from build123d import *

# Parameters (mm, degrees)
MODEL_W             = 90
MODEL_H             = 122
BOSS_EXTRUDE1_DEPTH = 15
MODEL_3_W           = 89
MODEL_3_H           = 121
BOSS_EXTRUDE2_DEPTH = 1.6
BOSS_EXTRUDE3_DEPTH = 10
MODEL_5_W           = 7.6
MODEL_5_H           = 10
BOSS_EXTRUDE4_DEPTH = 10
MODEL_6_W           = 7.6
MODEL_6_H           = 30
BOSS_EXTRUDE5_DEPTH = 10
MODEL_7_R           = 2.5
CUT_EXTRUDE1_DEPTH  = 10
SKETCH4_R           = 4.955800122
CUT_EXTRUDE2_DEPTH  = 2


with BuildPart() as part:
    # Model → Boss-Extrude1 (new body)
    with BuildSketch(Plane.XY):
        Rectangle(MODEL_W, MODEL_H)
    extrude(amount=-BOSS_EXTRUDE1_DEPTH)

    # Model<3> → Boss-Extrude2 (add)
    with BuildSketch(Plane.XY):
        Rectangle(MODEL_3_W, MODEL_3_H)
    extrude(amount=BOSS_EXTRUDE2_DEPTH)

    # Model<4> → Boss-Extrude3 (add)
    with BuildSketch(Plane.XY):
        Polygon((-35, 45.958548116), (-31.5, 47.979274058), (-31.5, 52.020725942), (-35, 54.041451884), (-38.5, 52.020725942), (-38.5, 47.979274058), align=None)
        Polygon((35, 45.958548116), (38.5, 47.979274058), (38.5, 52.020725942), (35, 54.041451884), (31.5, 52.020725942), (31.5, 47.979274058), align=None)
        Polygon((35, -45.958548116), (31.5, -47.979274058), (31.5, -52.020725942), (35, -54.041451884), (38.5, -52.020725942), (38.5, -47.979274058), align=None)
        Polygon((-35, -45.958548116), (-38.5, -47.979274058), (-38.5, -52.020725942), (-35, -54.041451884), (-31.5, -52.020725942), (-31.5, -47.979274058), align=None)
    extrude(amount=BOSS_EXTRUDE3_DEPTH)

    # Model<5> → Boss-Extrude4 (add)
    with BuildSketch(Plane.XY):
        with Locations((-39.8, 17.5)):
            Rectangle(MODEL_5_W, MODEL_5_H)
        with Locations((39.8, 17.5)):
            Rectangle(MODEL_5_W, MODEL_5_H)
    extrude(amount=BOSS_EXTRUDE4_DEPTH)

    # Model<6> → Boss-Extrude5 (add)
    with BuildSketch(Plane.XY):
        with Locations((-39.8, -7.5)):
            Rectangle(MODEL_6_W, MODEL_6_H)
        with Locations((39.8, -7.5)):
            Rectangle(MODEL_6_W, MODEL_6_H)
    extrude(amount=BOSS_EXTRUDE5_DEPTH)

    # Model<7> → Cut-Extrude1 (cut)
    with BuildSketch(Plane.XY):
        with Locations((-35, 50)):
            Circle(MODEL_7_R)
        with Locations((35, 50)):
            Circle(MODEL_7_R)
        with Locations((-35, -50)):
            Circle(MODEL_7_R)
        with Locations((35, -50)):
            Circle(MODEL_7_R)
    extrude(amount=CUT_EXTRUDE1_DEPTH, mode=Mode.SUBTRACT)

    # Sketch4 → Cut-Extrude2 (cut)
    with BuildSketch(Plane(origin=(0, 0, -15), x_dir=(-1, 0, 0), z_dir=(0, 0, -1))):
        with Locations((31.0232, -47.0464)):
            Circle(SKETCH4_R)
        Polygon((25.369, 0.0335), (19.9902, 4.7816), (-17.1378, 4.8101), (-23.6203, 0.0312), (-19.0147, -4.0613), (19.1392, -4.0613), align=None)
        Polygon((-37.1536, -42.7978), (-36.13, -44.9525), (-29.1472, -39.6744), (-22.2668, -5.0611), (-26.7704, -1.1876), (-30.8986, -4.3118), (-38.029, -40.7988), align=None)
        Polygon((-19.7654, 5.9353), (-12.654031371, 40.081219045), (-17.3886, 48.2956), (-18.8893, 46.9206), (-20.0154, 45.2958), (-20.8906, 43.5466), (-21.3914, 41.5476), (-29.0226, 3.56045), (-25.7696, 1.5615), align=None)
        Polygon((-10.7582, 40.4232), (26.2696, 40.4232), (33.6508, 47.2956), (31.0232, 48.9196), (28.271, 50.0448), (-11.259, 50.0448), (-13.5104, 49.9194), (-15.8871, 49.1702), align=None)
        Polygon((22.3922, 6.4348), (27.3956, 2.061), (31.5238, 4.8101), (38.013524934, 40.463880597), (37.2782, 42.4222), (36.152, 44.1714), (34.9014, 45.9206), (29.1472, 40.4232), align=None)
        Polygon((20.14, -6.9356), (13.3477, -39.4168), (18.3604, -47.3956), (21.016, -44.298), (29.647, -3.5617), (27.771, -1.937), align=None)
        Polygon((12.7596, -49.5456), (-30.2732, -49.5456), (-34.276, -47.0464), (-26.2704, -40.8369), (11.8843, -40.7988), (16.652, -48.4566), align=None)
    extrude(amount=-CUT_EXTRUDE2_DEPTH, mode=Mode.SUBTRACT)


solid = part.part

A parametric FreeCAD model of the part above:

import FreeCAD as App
import Part
import Sketcher
Q = App.Units.Quantity

doc = App.newDocument("Part")
body = doc.addObject("PartDesign::Body", "Body")

# Sketch on XY plane
sketch1 = body.newObject("Sketcher::SketchObject", "Sketch")
sketch1.AttachmentSupport = (doc.getObject("XY_Plane"), [""])
sketch1.MapMode = "FlatFace"
sketch1.addGeometry(Part.LineSegment(App.Vector(-45, 61, 0), App.Vector(-45, -61, 0)), False)
sketch1.addGeometry(Part.LineSegment(App.Vector(-45, -61, 0), App.Vector(45, -61, 0)), False)
sketch1.addGeometry(Part.LineSegment(App.Vector(45, -61, 0), App.Vector(45, 61, 0)), False)
sketch1.addGeometry(Part.LineSegment(App.Vector(45, 61, 0), App.Vector(-45, 61, 0)), False)
sketch1.addConstraint(Sketcher.Constraint("Coincident", 0, 2, 1, 1))
sketch1.addConstraint(Sketcher.Constraint("Coincident", 1, 2, 2, 1))
sketch1.addConstraint(Sketcher.Constraint("Coincident", 2, 2, 3, 1))
sketch1.addConstraint(Sketcher.Constraint("Coincident", 3, 2, 0, 1))
sketch1.addConstraint(Sketcher.Constraint("Vertical", 0))
sketch1.addConstraint(Sketcher.Constraint("Horizontal", 1))
sketch1.addConstraint(Sketcher.Constraint("Vertical", 2))
sketch1.addConstraint(Sketcher.Constraint("Horizontal", 3))
sketch1.addConstraint(Sketcher.Constraint("Symmetric", 0, 2, 2, 2, -1, 1))
sketch1.addConstraint(Sketcher.Constraint("DistanceX", 1, 1, 1, 2, Q("90 mm")))
sketch1.addConstraint(Sketcher.Constraint("DistanceY", 0, 2, 0, 1, Q("122 mm")))
pad1 = body.newObject("PartDesign::Pad", "Pad")
pad1.Profile = sketch1
pad1.Length = 15
pad1.Reversed = True

# Sketch on XY plane
sketch2 = body.newObject("Sketcher::SketchObject", "Sketch001")
sketch2.AttachmentSupport = (doc.getObject("XY_Plane"), [""])
sketch2.MapMode = "FlatFace"
sketch2.addGeometry(Part.LineSegment(App.Vector(-44, 60, 0), App.Vector(-44, -60, 0)), False)
sketch2.addGeometry(Part.LineSegment(App.Vector(-44, -60, 0), App.Vector(44, -60, 0)), False)
sketch2.addGeometry(Part.LineSegment(App.Vector(44, -60, 0), App.Vector(44, 60, 0)), False)
sketch2.addGeometry(Part.LineSegment(App.Vector(44, 60, 0), App.Vector(-44, 60, 0)), False)
sketch2.addConstraint(Sketcher.Constraint("Coincident", 0, 2, 1, 1))
sketch2.addConstraint(Sketcher.Constraint("Coincident", 1, 2, 2, 1))
sketch2.addConstraint(Sketcher.Constraint("Coincident", 2, 2, 3, 1))
sketch2.addConstraint(Sketcher.Constraint("Coincident", 3, 2, 0, 1))
sketch2.addConstraint(Sketcher.Constraint("Vertical", 0))
sketch2.addConstraint(Sketcher.Constraint("Horizontal", 1))
sketch2.addConstraint(Sketcher.Constraint("Vertical", 2))
sketch2.addConstraint(Sketcher.Constraint("Horizontal", 3))
sketch2.addConstraint(Sketcher.Constraint("Symmetric", 0, 2, 2, 2, -1, 1))
sketch2.addConstraint(Sketcher.Constraint("DistanceX", 1, 1, 1, 2, Q("89 mm")))
sketch2.addConstraint(Sketcher.Constraint("DistanceY", 0, 2, 0, 1, Q("121 mm")))
pad2 = body.newObject("PartDesign::Pad", "Pad001")
pad2.Profile = sketch2
pad2.Length = 1.6

# Sketch on XY plane
sketch3 = body.newObject("Sketcher::SketchObject", "Sketch002")
sketch3.AttachmentSupport = (doc.getObject("XY_Plane"), [""])
sketch3.MapMode = "FlatFace"
sketch3.addGeometry(Part.LineSegment(App.Vector(-35, 46, 0), App.Vector(-31.5, 48, 0)), False)
sketch3.addGeometry(Part.LineSegment(App.Vector(-31.5, 48, 0), App.Vector(-31.5, 52, 0)), False)
sketch3.addGeometry(Part.LineSegment(App.Vector(-31.5, 52, 0), App.Vector(-35, 54, 0)), False)
sketch3.addGeometry(Part.LineSegment(App.Vector(-35, 54, 0), App.Vector(-38.5, 52, 0)), False)
sketch3.addGeometry(Part.LineSegment(App.Vector(-38.5, 52, 0), App.Vector(-38.5, 48, 0)), False)
sketch3.addGeometry(Part.LineSegment(App.Vector(-38.5, 48, 0), App.Vector(-35, 46, 0)), False)
sketch3.addGeometry(Part.LineSegment(App.Vector(35, 46, 0), App.Vector(38.5, 48, 0)), False)
sketch3.addGeometry(Part.LineSegment(App.Vector(38.5, 48, 0), App.Vector(38.5, 52, 0)), False)
sketch3.addGeometry(Part.LineSegment(App.Vector(38.5, 52, 0), App.Vector(35, 54, 0)), False)
sketch3.addGeometry(Part.LineSegment(App.Vector(35, 54, 0), App.Vector(31.5, 52, 0)), False)
sketch3.addGeometry(Part.LineSegment(App.Vector(31.5, 52, 0), App.Vector(31.5, 48, 0)), False)
sketch3.addGeometry(Part.LineSegment(App.Vector(31.5, 48, 0), App.Vector(35, 46, 0)), False)
sketch3.addGeometry(Part.LineSegment(App.Vector(35, -46, 0), App.Vector(31.5, -48, 0)), False)
sketch3.addGeometry(Part.LineSegment(App.Vector(31.5, -48, 0), App.Vector(31.5, -52, 0)), False)
sketch3.addGeometry(Part.LineSegment(App.Vector(31.5, -52, 0), App.Vector(35, -54, 0)), False)
sketch3.addGeometry(Part.LineSegment(App.Vector(35, -54, 0), App.Vector(38.5, -52, 0)), False)
sketch3.addGeometry(Part.LineSegment(App.Vector(38.5, -52, 0), App.Vector(38.5, -48, 0)), False)
sketch3.addGeometry(Part.LineSegment(App.Vector(38.5, -48, 0), App.Vector(35, -46, 0)), False)
sketch3.addGeometry(Part.LineSegment(App.Vector(-35, -46, 0), App.Vector(-38.5, -48, 0)), False)
sketch3.addGeometry(Part.LineSegment(App.Vector(-38.5, -48, 0), App.Vector(-38.5, -52, 0)), False)
sketch3.addGeometry(Part.LineSegment(App.Vector(-38.5, -52, 0), App.Vector(-35, -54, 0)), False)
sketch3.addGeometry(Part.LineSegment(App.Vector(-35, -54, 0), App.Vector(-31.5, -52, 0)), False)
sketch3.addGeometry(Part.LineSegment(App.Vector(-31.5, -52, 0), App.Vector(-31.5, -48, 0)), False)
sketch3.addGeometry(Part.LineSegment(App.Vector(-31.5, -48, 0), App.Vector(-35, -46, 0)), False)
sketch3.addConstraint(Sketcher.Constraint("Coincident", 0, 2, 1, 1))
sketch3.addConstraint(Sketcher.Constraint("Coincident", 1, 2, 2, 1))
sketch3.addConstraint(Sketcher.Constraint("Coincident", 2, 2, 3, 1))
sketch3.addConstraint(Sketcher.Constraint("Coincident", 3, 2, 4, 1))
sketch3.addConstraint(Sketcher.Constraint("Coincident", 4, 2, 5, 1))
sketch3.addConstraint(Sketcher.Constraint("Coincident", 5, 2, 0, 1))
sketch3.addConstraint(Sketcher.Constraint("Coincident", 6, 2, 7, 1))
sketch3.addConstraint(Sketcher.Constraint("Coincident", 7, 2, 8, 1))
sketch3.addConstraint(Sketcher.Constraint("Coincident", 8, 2, 9, 1))
sketch3.addConstraint(Sketcher.Constraint("Coincident", 9, 2, 10, 1))
sketch3.addConstraint(Sketcher.Constraint("Coincident", 10, 2, 11, 1))
sketch3.addConstraint(Sketcher.Constraint("Coincident", 11, 2, 6, 1))
sketch3.addConstraint(Sketcher.Constraint("Coincident", 12, 2, 13, 1))
sketch3.addConstraint(Sketcher.Constraint("Coincident", 13, 2, 14, 1))
sketch3.addConstraint(Sketcher.Constraint("Coincident", 14, 2, 15, 1))
sketch3.addConstraint(Sketcher.Constraint("Coincident", 15, 2, 16, 1))
sketch3.addConstraint(Sketcher.Constraint("Coincident", 16, 2, 17, 1))
sketch3.addConstraint(Sketcher.Constraint("Coincident", 17, 2, 12, 1))
sketch3.addConstraint(Sketcher.Constraint("Coincident", 18, 2, 19, 1))
sketch3.addConstraint(Sketcher.Constraint("Coincident", 19, 2, 20, 1))
sketch3.addConstraint(Sketcher.Constraint("Coincident", 20, 2, 21, 1))
sketch3.addConstraint(Sketcher.Constraint("Coincident", 21, 2, 22, 1))
sketch3.addConstraint(Sketcher.Constraint("Coincident", 22, 2, 23, 1))
sketch3.addConstraint(Sketcher.Constraint("Coincident", 23, 2, 18, 1))
sketch3.addConstraint(Sketcher.Constraint("Vertical", 1))
sketch3.addConstraint(Sketcher.Constraint("Vertical", 4))
sketch3.addConstraint(Sketcher.Constraint("Vertical", 7))
sketch3.addConstraint(Sketcher.Constraint("Vertical", 10))
sketch3.addConstraint(Sketcher.Constraint("Vertical", 13))
sketch3.addConstraint(Sketcher.Constraint("Vertical", 16))
sketch3.addConstraint(Sketcher.Constraint("Vertical", 19))
sketch3.addConstraint(Sketcher.Constraint("Vertical", 22))
sketch3.addConstraint(Sketcher.Constraint("Symmetric", 0, 2, 12, 2, -1, 1))
sketch3.addConstraint(Sketcher.Constraint("Symmetric", 2, 2, 14, 2, -1, 1))
sketch3.addConstraint(Sketcher.Constraint("Symmetric", 3, 2, 15, 2, -1, 1))
sketch3.addConstraint(Sketcher.Constraint("Symmetric", 5, 2, 17, 2, -1, 1))
sketch3.addConstraint(Sketcher.Constraint("Symmetric", 6, 2, 18, 2, -1, 1))
sketch3.addConstraint(Sketcher.Constraint("Symmetric", 8, 2, 20, 2, -1, 1))
sketch3.addConstraint(Sketcher.Constraint("Symmetric", 9, 2, 21, 2, -1, 1))
sketch3.addConstraint(Sketcher.Constraint("Symmetric", 11, 2, 23, 2, -1, 1))
sketch3.addConstraint(Sketcher.Constraint("Symmetric", 4, 2, 6, 2, -2))
sketch3.addConstraint(Sketcher.Constraint("Symmetric", 2, 2, 8, 2, -2))
sketch3.addConstraint(Sketcher.Constraint("Symmetric", 1, 2, 9, 2, -2))
sketch3.addConstraint(Sketcher.Constraint("Symmetric", 5, 2, 11, 2, -2))
sketch3.addConstraint(Sketcher.Constraint("Parallel", 0, 3))
sketch3.addConstraint(Sketcher.Constraint("Parallel", 2, 5))
sketch3.addConstraint(Sketcher.Constraint("Parallel", 3, 6))
sketch3.addConstraint(Sketcher.Constraint("Parallel", 5, 8))
sketch3.addConstraint(Sketcher.Constraint("Parallel", 8, 11))
sketch3.addConstraint(Sketcher.Constraint("Parallel", 11, 14))
sketch3.addConstraint(Sketcher.Constraint("Parallel", 14, 17))
sketch3.addConstraint(Sketcher.Constraint("Parallel", 17, 20))
sketch3.addConstraint(Sketcher.Constraint("Parallel", 20, 23))
sketch3.addConstraint(Sketcher.Constraint("Horizontal", 1, 2, 3, 2))
sketch3.addConstraint(Sketcher.Constraint("Horizontal", 0, 2, 4, 2))
sketch3.addConstraint(Sketcher.Constraint("Angle", 0, Q("30 deg")))
sketch3.addConstraint(Sketcher.Constraint("DistanceX", 2, 2, -1, 1, Q("35 mm")))
sketch3.addConstraint(Sketcher.Constraint("DistanceX", 3, 2, 1, 2, Q("7 mm")))
sketch3.addConstraint(Sketcher.Constraint("DistanceY", 12, 2, 9, 2, Q("100 mm")))
sketch3.addConstraint(Sketcher.Constraint("DistanceY", 1, 1, 1, 2, Q("4.041452 mm")))
pad3 = body.newObject("PartDesign::Pad", "Pad002")
pad3.Profile = sketch3
pad3.Length = 10

# Sketch on XY plane
sketch4 = body.newObject("Sketcher::SketchObject", "Sketch003")
sketch4.AttachmentSupport = (doc.getObject("XY_Plane"), [""])
sketch4.MapMode = "FlatFace"
sketch4.addGeometry(Part.LineSegment(App.Vector(-44, 22, 0), App.Vector(-44, 12, 0)), False)
sketch4.addGeometry(Part.LineSegment(App.Vector(-44, 12, 0), App.Vector(-36, 12, 0)), False)
sketch4.addGeometry(Part.LineSegment(App.Vector(-36, 12, 0), App.Vector(-36, 22, 0)), False)
sketch4.addGeometry(Part.LineSegment(App.Vector(-36, 22, 0), App.Vector(-44, 22, 0)), False)
sketch4.addGeometry(Part.LineSegment(App.Vector(36, 22, 0), App.Vector(36, 12, 0)), False)
sketch4.addGeometry(Part.LineSegment(App.Vector(36, 12, 0), App.Vector(44, 12, 0)), False)
sketch4.addGeometry(Part.LineSegment(App.Vector(44, 12, 0), App.Vector(44, 22, 0)), False)
sketch4.addGeometry(Part.LineSegment(App.Vector(44, 22, 0), App.Vector(36, 22, 0)), False)
sketch4.addConstraint(Sketcher.Constraint("Coincident", 0, 2, 1, 1))
sketch4.addConstraint(Sketcher.Constraint("Coincident", 1, 2, 2, 1))
sketch4.addConstraint(Sketcher.Constraint("Coincident", 2, 2, 3, 1))
sketch4.addConstraint(Sketcher.Constraint("Coincident", 3, 2, 0, 1))
sketch4.addConstraint(Sketcher.Constraint("Coincident", 4, 2, 5, 1))
sketch4.addConstraint(Sketcher.Constraint("Coincident", 5, 2, 6, 1))
sketch4.addConstraint(Sketcher.Constraint("Coincident", 6, 2, 7, 1))
sketch4.addConstraint(Sketcher.Constraint("Coincident", 7, 2, 4, 1))
sketch4.addConstraint(Sketcher.Constraint("Vertical", 0))
sketch4.addConstraint(Sketcher.Constraint("Horizontal", 1))
sketch4.addConstraint(Sketcher.Constraint("Vertical", 2))
sketch4.addConstraint(Sketcher.Constraint("Horizontal", 3))
sketch4.addConstraint(Sketcher.Constraint("Vertical", 4))
sketch4.addConstraint(Sketcher.Constraint("Horizontal", 5))
sketch4.addConstraint(Sketcher.Constraint("Vertical", 6))
sketch4.addConstraint(Sketcher.Constraint("Horizontal", 7))
sketch4.addConstraint(Sketcher.Constraint("Symmetric", 1, 2, 4, 2, -2))
sketch4.addConstraint(Sketcher.Constraint("Symmetric", 3, 2, 6, 2, -2))
sketch4.addConstraint(Sketcher.Constraint("DistanceY", 0, 2, 0, 1, Q("10 mm")))
sketch4.addConstraint(Sketcher.Constraint("DistanceX", 1, 1, 1, 2, Q("7.6 mm")))
sketch4.addConstraint(Sketcher.Constraint("DistanceX", 1, 2, -1, 1, Q("36 mm")))
sketch4.addConstraint(Sketcher.Constraint("DistanceY", -1, 1, 0, 2, Q("12.5 mm")))
pad4 = body.newObject("PartDesign::Pad", "Pad003")
pad4.Profile = sketch4
pad4.Length = 10

# Sketch on XY plane
sketch5 = body.newObject("Sketcher::SketchObject", "Sketch004")
sketch5.AttachmentSupport = (doc.getObject("XY_Plane"), [""])
sketch5.MapMode = "FlatFace"
sketch5.addGeometry(Part.LineSegment(App.Vector(-44, 8, 0), App.Vector(-44, -22, 0)), False)
sketch5.addGeometry(Part.LineSegment(App.Vector(-44, -22, 0), App.Vector(-36, -22, 0)), False)
sketch5.addGeometry(Part.LineSegment(App.Vector(-36, -22, 0), App.Vector(-36, 8, 0)), False)
sketch5.addGeometry(Part.LineSegment(App.Vector(-36, 8, 0), App.Vector(-44, 8, 0)), False)
sketch5.addGeometry(Part.LineSegment(App.Vector(36, 8, 0), App.Vector(36, -22, 0)), False)
sketch5.addGeometry(Part.LineSegment(App.Vector(36, -22, 0), App.Vector(44, -22, 0)), False)
sketch5.addGeometry(Part.LineSegment(App.Vector(44, -22, 0), App.Vector(44, 8, 0)), False)
sketch5.addGeometry(Part.LineSegment(App.Vector(44, 8, 0), App.Vector(36, 8, 0)), False)
sketch5.addConstraint(Sketcher.Constraint("Coincident", 0, 2, 1, 1))
sketch5.addConstraint(Sketcher.Constraint("Coincident", 1, 2, 2, 1))
sketch5.addConstraint(Sketcher.Constraint("Coincident", 2, 2, 3, 1))
sketch5.addConstraint(Sketcher.Constraint("Coincident", 3, 2, 0, 1))
sketch5.addConstraint(Sketcher.Constraint("Coincident", 4, 2, 5, 1))
sketch5.addConstraint(Sketcher.Constraint("Coincident", 5, 2, 6, 1))
sketch5.addConstraint(Sketcher.Constraint("Coincident", 6, 2, 7, 1))
sketch5.addConstraint(Sketcher.Constraint("Coincident", 7, 2, 4, 1))
sketch5.addConstraint(Sketcher.Constraint("Vertical", 0))
sketch5.addConstraint(Sketcher.Constraint("Horizontal", 1))
sketch5.addConstraint(Sketcher.Constraint("Vertical", 2))
sketch5.addConstraint(Sketcher.Constraint("Horizontal", 3))
sketch5.addConstraint(Sketcher.Constraint("Vertical", 4))
sketch5.addConstraint(Sketcher.Constraint("Horizontal", 5))
sketch5.addConstraint(Sketcher.Constraint("Vertical", 6))
sketch5.addConstraint(Sketcher.Constraint("Horizontal", 7))
sketch5.addConstraint(Sketcher.Constraint("Symmetric", 1, 2, 4, 2, -2))
sketch5.addConstraint(Sketcher.Constraint("Symmetric", 3, 2, 6, 2, -2))
sketch5.addConstraint(Sketcher.Constraint("DistanceY", 0, 2, 0, 1, Q("30 mm")))
sketch5.addConstraint(Sketcher.Constraint("DistanceX", 1, 1, 1, 2, Q("7.6 mm")))
sketch5.addConstraint(Sketcher.Constraint("DistanceX", 1, 2, -1, 1, Q("36 mm")))
sketch5.addConstraint(Sketcher.Constraint("DistanceY", 0, 2, -1, 1, Q("22.5 mm")))
pad5 = body.newObject("PartDesign::Pad", "Pad004")
pad5.Profile = sketch5
pad5.Length = 10

# Sketch on XY plane
sketch6 = body.newObject("Sketcher::SketchObject", "Sketch005")
sketch6.AttachmentSupport = (doc.getObject("XY_Plane"), [""])
sketch6.MapMode = "FlatFace"
sketch6.addGeometry(Part.Circle(App.Vector(-35, 50, 0), App.Vector(0, 0, 1), 2.5), False)
sketch6.addGeometry(Part.Circle(App.Vector(35, 50, 0), App.Vector(0, 0, 1), 2.5), False)
sketch6.addGeometry(Part.Circle(App.Vector(-35, -50, 0), App.Vector(0, 0, 1), 2.5), False)
sketch6.addGeometry(Part.Circle(App.Vector(35, -50, 0), App.Vector(0, 0, 1), 2.5), False)
sketch6.addConstraint(Sketcher.Constraint("Equal", 0, 1))
sketch6.addConstraint(Sketcher.Constraint("Equal", 1, 2))
sketch6.addConstraint(Sketcher.Constraint("Equal", 2, 3))
sketch6.addConstraint(Sketcher.Constraint("Symmetric", 1, 3, 2, 3, -1, 1))
sketch6.addConstraint(Sketcher.Constraint("Symmetric", 0, 3, 3, 3, -1, 1))
sketch6.addConstraint(Sketcher.Constraint("Symmetric", 0, 3, 1, 3, -2))
sketch6.addConstraint(Sketcher.Constraint("Diameter", 0, Q("5 mm")))
sketch6.addConstraint(Sketcher.Constraint("DistanceX", 0, 3, -1, 1, Q("35 mm")))
sketch6.addConstraint(Sketcher.Constraint("DistanceY", -1, 1, 0, 3, Q("50 mm")))
pocket1 = body.newObject("PartDesign::Pocket", "Pocket")
pocket1.Profile = sketch6
pocket1.Length = 10
pocket1.Reversed = True

# Sketch on XY plane
sketch7 = body.newObject("Sketcher::SketchObject", "Sketch006")
sketch7.AttachmentSupport = (doc.getObject("XY_Plane"), [""])
sketch7.MapMode = "FlatFace"
sketch7.AttachmentOffset = App.Placement(App.Vector(0, 0, -15), App.Rotation())
sketch7.addGeometry(Part.Circle(App.Vector(-31, -47, 0), App.Vector(0, 0, 1), 5), False)
sketch7.addGeometry(Part.LineSegment(App.Vector(-25.4, 0, 0), App.Vector(-20, 4.8, 0)), False)
sketch7.addGeometry(Part.LineSegment(App.Vector(-20, 4.8, 0), App.Vector(17.1, 4.8, 0)), False)
sketch7.addGeometry(Part.LineSegment(App.Vector(17.1, 4.8, 0), App.Vector(23.6, 0, 0)), False)
sketch7.addGeometry(Part.LineSegment(App.Vector(23.6, 0, 0), App.Vector(19, -4.1, 0)), False)
sketch7.addGeometry(Part.LineSegment(App.Vector(19, -4.1, 0), App.Vector(-19.1, -4.1, 0)), False)
sketch7.addGeometry(Part.LineSegment(App.Vector(-19.1, -4.1, 0), App.Vector(-25.4, 0, 0)), False)
sketch7.addGeometry(Part.LineSegment(App.Vector(37.2, -42.8, 0), App.Vector(36.1, -45, 0)), False)
sketch7.addGeometry(Part.LineSegment(App.Vector(36.1, -45, 0), App.Vector(29.1, -39.7, 0)), False)
sketch7.addGeometry(Part.LineSegment(App.Vector(29.1, -39.7, 0), App.Vector(22.3, -5.1, 0)), False)
sketch7.addGeometry(Part.LineSegment(App.Vector(22.3, -5.1, 0), App.Vector(26.8, -1.2, 0)), False)
sketch7.addGeometry(Part.LineSegment(App.Vector(26.8, -1.2, 0), App.Vector(30.9, -4.3, 0)), False)
sketch7.addGeometry(Part.LineSegment(App.Vector(30.9, -4.3, 0), App.Vector(38, -40.8, 0)), False)
sketch7.addGeometry(Part.LineSegment(App.Vector(38, -40.8, 0), App.Vector(37.2, -42.8, 0)), False)
sketch7.addGeometry(Part.LineSegment(App.Vector(19.8, 5.9, 0), App.Vector(12.7, 40.1, 0)), False)
sketch7.addGeometry(Part.LineSegment(App.Vector(12.7, 40.1, 0), App.Vector(17.4, 48.3, 0)), False)
sketch7.addGeometry(Part.LineSegment(App.Vector(17.4, 48.3, 0), App.Vector(18.9, 46.9, 0)), False)
sketch7.addGeometry(Part.LineSegment(App.Vector(18.9, 46.9, 0), App.Vector(20, 45.3, 0)), False)
sketch7.addGeometry(Part.LineSegment(App.Vector(20, 45.3, 0), App.Vector(20.9, 43.5, 0)), False)
sketch7.addGeometry(Part.LineSegment(App.Vector(20.9, 43.5, 0), App.Vector(21.4, 41.5, 0)), False)
sketch7.addGeometry(Part.LineSegment(App.Vector(21.4, 41.5, 0), App.Vector(29, 3.6, 0)), False)
sketch7.addGeometry(Part.LineSegment(App.Vector(29, 3.6, 0), App.Vector(25.8, 1.6, 0)), False)
sketch7.addGeometry(Part.LineSegment(App.Vector(25.8, 1.6, 0), App.Vector(19.8, 5.9, 0)), False)
sketch7.addGeometry(Part.LineSegment(App.Vector(10.8, 40.4, 0), App.Vector(-26.3, 40.4, 0)), False)
sketch7.addGeometry(Part.LineSegment(App.Vector(-26.3, 40.4, 0), App.Vector(-33.7, 47.3, 0)), False)
sketch7.addGeometry(Part.LineSegment(App.Vector(-33.7, 47.3, 0), App.Vector(-31, 48.9, 0)), False)
sketch7.addGeometry(Part.LineSegment(App.Vector(-31, 48.9, 0), App.Vector(-28.3, 50, 0)), False)
sketch7.addGeometry(Part.LineSegment(App.Vector(-28.3, 50, 0), App.Vector(11.3, 50, 0)), False)
sketch7.addGeometry(Part.LineSegment(App.Vector(11.3, 50, 0), App.Vector(13.5, 49.9, 0)), False)
sketch7.addGeometry(Part.LineSegment(App.Vector(13.5, 49.9, 0), App.Vector(15.9, 49.2, 0)), False)
sketch7.addGeometry(Part.LineSegment(App.Vector(15.9, 49.2, 0), App.Vector(10.8, 40.4, 0)), False)
sketch7.addGeometry(Part.LineSegment(App.Vector(-22.4, 6.4, 0), App.Vector(-27.4, 2.1, 0)), False)
sketch7.addGeometry(Part.LineSegment(App.Vector(-27.4, 2.1, 0), App.Vector(-31.5, 4.8, 0)), False)
sketch7.addGeometry(Part.LineSegment(App.Vector(-31.5, 4.8, 0), App.Vector(-38, 40.5, 0)), False)
sketch7.addGeometry(Part.LineSegment(App.Vector(-38, 40.5, 0), App.Vector(-37.3, 42.4, 0)), False)
sketch7.addGeometry(Part.LineSegment(App.Vector(-37.3, 42.4, 0), App.Vector(-36.2, 44.2, 0)), False)
sketch7.addGeometry(Part.LineSegment(App.Vector(-36.2, 44.2, 0), App.Vector(-34.9, 45.9, 0)), False)
sketch7.addGeometry(Part.LineSegment(App.Vector(-34.9, 45.9, 0), App.Vector(-29.1, 40.4, 0)), False)
sketch7.addGeometry(Part.LineSegment(App.Vector(-29.1, 40.4, 0), App.Vector(-22.4, 6.4, 0)), False)
sketch7.addGeometry(Part.LineSegment(App.Vector(-20.1, -6.9, 0), App.Vector(-13.3, -39.4, 0)), False)
sketch7.addGeometry(Part.LineSegment(App.Vector(-13.3, -39.4, 0), App.Vector(-18.4, -47.4, 0)), False)
sketch7.addGeometry(Part.LineSegment(App.Vector(-18.4, -47.4, 0), App.Vector(-21, -44.3, 0)), False)
sketch7.addGeometry(Part.LineSegment(App.Vector(-21, -44.3, 0), App.Vector(-29.6, -3.6, 0)), False)
sketch7.addGeometry(Part.LineSegment(App.Vector(-29.6, -3.6, 0), App.Vector(-27.8, -1.9, 0)), False)
sketch7.addGeometry(Part.LineSegment(App.Vector(-27.8, -1.9, 0), App.Vector(-20.1, -6.9, 0)), False)
sketch7.addGeometry(Part.LineSegment(App.Vector(30.3, -49.5, 0), App.Vector(-12.8, -49.5, 0)), False)
sketch7.addGeometry(Part.LineSegment(App.Vector(-12.8, -49.5, 0), App.Vector(-16.7, -48.5, 0)), False)
sketch7.addGeometry(Part.LineSegment(App.Vector(-16.7, -48.5, 0), App.Vector(-11.9, -40.8, 0)), False)
sketch7.addGeometry(Part.LineSegment(App.Vector(-11.9, -40.8, 0), App.Vector(26.3, -40.8, 0)), False)
sketch7.addGeometry(Part.LineSegment(App.Vector(26.3, -40.8, 0), App.Vector(34.3, -47, 0)), False)
sketch7.addGeometry(Part.LineSegment(App.Vector(34.3, -47, 0), App.Vector(30.3, -49.5, 0)), False)
sketch7.addConstraint(Sketcher.Constraint("Coincident", 1, 2, 2, 1))
sketch7.addConstraint(Sketcher.Constraint("Coincident", 2, 2, 3, 1))
sketch7.addConstraint(Sketcher.Constraint("Coincident", 3, 2, 4, 1))
sketch7.addConstraint(Sketcher.Constraint("Coincident", 4, 2, 5, 1))
sketch7.addConstraint(Sketcher.Constraint("Coincident", 5, 2, 6, 1))
sketch7.addConstraint(Sketcher.Constraint("Coincident", 6, 2, 1, 1))
sketch7.addConstraint(Sketcher.Constraint("Coincident", 7, 2, 8, 1))
sketch7.addConstraint(Sketcher.Constraint("Coincident", 8, 2, 9, 1))
sketch7.addConstraint(Sketcher.Constraint("Coincident", 9, 2, 10, 1))
sketch7.addConstraint(Sketcher.Constraint("Coincident", 10, 2, 11, 1))
sketch7.addConstraint(Sketcher.Constraint("Coincident", 11, 2, 12, 1))
sketch7.addConstraint(Sketcher.Constraint("Coincident", 12, 2, 13, 1))
sketch7.addConstraint(Sketcher.Constraint("Coincident", 13, 2, 7, 1))
sketch7.addConstraint(Sketcher.Constraint("Coincident", 14, 2, 15, 1))
sketch7.addConstraint(Sketcher.Constraint("Coincident", 15, 2, 16, 1))
sketch7.addConstraint(Sketcher.Constraint("Coincident", 16, 2, 17, 1))
sketch7.addConstraint(Sketcher.Constraint("Coincident", 17, 2, 18, 1))
sketch7.addConstraint(Sketcher.Constraint("Coincident", 18, 2, 19, 1))
sketch7.addConstraint(Sketcher.Constraint("Coincident", 19, 2, 20, 1))
sketch7.addConstraint(Sketcher.Constraint("Coincident", 20, 2, 21, 1))
sketch7.addConstraint(Sketcher.Constraint("Coincident", 21, 2, 22, 1))
sketch7.addConstraint(Sketcher.Constraint("Coincident", 22, 2, 14, 1))
sketch7.addConstraint(Sketcher.Constraint("Coincident", 23, 2, 24, 1))
sketch7.addConstraint(Sketcher.Constraint("Coincident", 24, 2, 25, 1))
sketch7.addConstraint(Sketcher.Constraint("Coincident", 25, 2, 26, 1))
sketch7.addConstraint(Sketcher.Constraint("Coincident", 26, 2, 27, 1))
sketch7.addConstraint(Sketcher.Constraint("Coincident", 27, 2, 28, 1))
sketch7.addConstraint(Sketcher.Constraint("Coincident", 28, 2, 29, 1))
sketch7.addConstraint(Sketcher.Constraint("Coincident", 29, 2, 30, 1))
sketch7.addConstraint(Sketcher.Constraint("Coincident", 30, 2, 23, 1))
sketch7.addConstraint(Sketcher.Constraint("Coincident", 31, 2, 32, 1))
sketch7.addConstraint(Sketcher.Constraint("Coincident", 32, 2, 33, 1))
sketch7.addConstraint(Sketcher.Constraint("Coincident", 33, 2, 34, 1))
sketch7.addConstraint(Sketcher.Constraint("Coincident", 34, 2, 35, 1))
sketch7.addConstraint(Sketcher.Constraint("Coincident", 35, 2, 36, 1))
sketch7.addConstraint(Sketcher.Constraint("Coincident", 36, 2, 37, 1))
sketch7.addConstraint(Sketcher.Constraint("Coincident", 37, 2, 38, 1))
sketch7.addConstraint(Sketcher.Constraint("Coincident", 38, 2, 31, 1))
sketch7.addConstraint(Sketcher.Constraint("Coincident", 39, 2, 40, 1))
sketch7.addConstraint(Sketcher.Constraint("Coincident", 40, 2, 41, 1))
sketch7.addConstraint(Sketcher.Constraint("Coincident", 41, 2, 42, 1))
sketch7.addConstraint(Sketcher.Constraint("Coincident", 42, 2, 43, 1))
sketch7.addConstraint(Sketcher.Constraint("Coincident", 43, 2, 44, 1))
sketch7.addConstraint(Sketcher.Constraint("Coincident", 44, 2, 39, 1))
sketch7.addConstraint(Sketcher.Constraint("Coincident", 45, 2, 46, 1))
sketch7.addConstraint(Sketcher.Constraint("Coincident", 46, 2, 47, 1))
sketch7.addConstraint(Sketcher.Constraint("Coincident", 47, 2, 48, 1))
sketch7.addConstraint(Sketcher.Constraint("Coincident", 48, 2, 49, 1))
sketch7.addConstraint(Sketcher.Constraint("Coincident", 49, 2, 50, 1))
sketch7.addConstraint(Sketcher.Constraint("Coincident", 50, 2, 45, 1))
sketch7.addConstraint(Sketcher.Constraint("Horizontal", 5))
sketch7.addConstraint(Sketcher.Constraint("Horizontal", 23))
sketch7.addConstraint(Sketcher.Constraint("Horizontal", 27))
sketch7.addConstraint(Sketcher.Constraint("Horizontal", 45))
sketch7.addConstraint(Sketcher.Constraint("Horizontal", 2, 2, 32, 2))
sketch7.addConstraint(Sketcher.Constraint("Horizontal", 30, 2, 37, 2))
sketch7.addConstraint(Sketcher.Constraint("Horizontal", 12, 2, 47, 2))
sketch7.addConstraint(Sketcher.Constraint("Horizontal", 0, 3, 49, 2))
sketch7.addConstraint(Sketcher.Constraint("Vertical", 0, 3, 25, 2))
sketch7.addConstraint(Sketcher.Constraint("DistanceY", 24, 2, 15, 2, Q("1 mm")))
sketch7.addConstraint(Sketcher.Constraint("Diameter", 0, Q("9.9116 mm")))
sketch7.addConstraint(Sketcher.Constraint("DistanceX", 27, 1, 27, 2, Q("39.53 mm")))
sketch7.addConstraint(Sketcher.Constraint("DistanceX", -1, 1, 7, 2, Q("36.13 mm")))
sketch7.addConstraint(Sketcher.Constraint("DistanceX", 44, 2, -1, 1, Q("20.14 mm")))
sketch7.addConstraint(Sketcher.Constraint("DistanceY", 45, 2, 40, 2, Q("2.15 mm")))
sketch7.addConstraint(Sketcher.Constraint("DistanceX", 5, 2, 5, 1, Q("38.1539 mm")))
sketch7.addConstraint(Sketcher.Constraint("DistanceX", 23, 2, 23, 1, Q("37.0278 mm")))
sketch7.addConstraint(Sketcher.Constraint("DistanceX", 45, 2, 45, 1, Q("43.0328 mm")))
sketch7.addConstraint(Sketcher.Constraint("DistanceX", 6, 2, -1, 1, Q("25.369 mm")))
sketch7.addConstraint(Sketcher.Constraint("DistanceX", -1, 1, 12, 2, Q("38.029 mm")))
sketch7.addConstraint(Sketcher.Constraint("DistanceX", 26, 2, -1, 1, Q("28.271 mm")))
sketch7.addConstraint(Sketcher.Constraint("DistanceY", -1, 1, 31, 2, Q("2.061 mm")))
sketch7.addConstraint(Sketcher.Constraint("DistanceX", 35, 2, -1, 1, Q("36.152 mm")))
sketch7.addConstraint(Sketcher.Constraint("DistanceX", 41, 2, -1, 1, Q("21.016 mm")))
sketch7.addConstraint(Sketcher.Constraint("DistanceY", 41, 2, -1, 1, Q("44.298 mm")))
sketch7.addConstraint(Sketcher.Constraint("DistanceX", 42, 2, -1, 1, Q("29.647 mm")))
sketch7.addConstraint(Sketcher.Constraint("DistanceX", 43, 2, -1, 1, Q("27.771 mm")))
sketch7.addConstraint(Sketcher.Constraint("DistanceY", 43, 2, -1, 1, Q("1.937 mm")))
sketch7.addConstraint(Sketcher.Constraint("DistanceX", 46, 2, -1, 1, Q("16.652 mm")))
sketch7.addConstraint(Sketcher.Constraint("DistanceX", -1, 1, 49, 2, Q("34.276 mm")))
sketch7.addConstraint(Sketcher.Constraint("DistanceX", 0, 3, 1, 2, Q("11.033 mm")))
sketch7.addConstraint(Sketcher.Constraint("DistanceY", 0, 3, 1, 2, Q("51.828 mm")))
sketch7.addConstraint(Sketcher.Constraint("DistanceX", 1, 2, 2, 2, Q("37.128 mm")))
sketch7.addConstraint(Sketcher.Constraint("DistanceX", 1, 2, 5, 2, Q("0.851 mm")))
sketch7.addConstraint(Sketcher.Constraint("DistanceX", 2, 2, 9, 2, Q("5.129 mm")))
sketch7.addConstraint(Sketcher.Constraint("DistanceY", 11, 2, 3, 2, Q("4.343 mm")))
sketch7.addConstraint(Sketcher.Constraint("DistanceY", 12, 2, 11, 2, Q("36.487 mm")))
sketch7.addConstraint(Sketcher.Constraint("DistanceY", 13, 2, 12, 2, Q("1.999 mm")))
sketch7.addConstraint(Sketcher.Constraint("DistanceX", 11, 2, 13, 2, Q("6.255 mm")))
sketch7.addConstraint(Sketcher.Constraint("DistanceY", 16, 2, 15, 2, Q("1.375 mm")))
sketch7.addConstraint(Sketcher.Constraint("DistanceX", 16, 2, 3, 2, Q("4.731 mm")))
sketch7.addConstraint(Sketcher.Constraint("DistanceY", 18, 2, 16, 2, Q("3.374 mm")))
sketch7.addConstraint(Sketcher.Constraint("DistanceX", 15, 2, 18, 2, Q("3.502 mm")))
sketch7.addConstraint(Sketcher.Constraint("DistanceY", 19, 2, 18, 2, Q("1.999 mm")))
sketch7.addConstraint(Sketcher.Constraint("DistanceX", 17, 2, 19, 2, Q("1.376 mm")))
sketch7.addConstraint(Sketcher.Constraint("DistanceX", 20, 2, 11, 2, Q("1.876 mm")))
sketch7.addConstraint(Sketcher.Constraint("DistanceX", 21, 2, 20, 2, Q("3.253 mm")))
sketch7.addConstraint(Sketcher.Constraint("DistanceX", 22, 2, 10, 2, Q("7.005 mm")))
sketch7.addConstraint(Sketcher.Constraint("DistanceY", 1, 2, 24, 2, Q("42.514 mm")))
sketch7.addConstraint(Sketcher.Constraint("DistanceY", 24, 2, 25, 2, Q("1.624 mm")))
sketch7.addConstraint(Sketcher.Constraint("DistanceY", 17, 2, 27, 2, Q("4.749 mm")))
sketch7.addConstraint(Sketcher.Constraint("DistanceX", 28, 2, 17, 2, Q("6.505 mm")))
sketch7.addConstraint(Sketcher.Constraint("DistanceY", 30, 2, 29, 2, Q("8.747 mm")))
sketch7.addConstraint(Sketcher.Constraint("DistanceX", 31, 2, 23, 2, Q("1.126 mm")))
sketch7.addConstraint(Sketcher.Constraint("DistanceX", 34, 2, 25, 2, Q("6.255 mm")))
sketch7.addConstraint(Sketcher.Constraint("DistanceY", 23, 2, 34, 2, Q("1.999 mm")))
sketch7.addConstraint(Sketcher.Constraint("DistanceY", 36, 2, 24, 2, Q("1.375 mm")))
sketch7.addConstraint(Sketcher.Constraint("DistanceX", 34, 2, 37, 2, Q("8.131 mm")))
sketch7.addConstraint(Sketcher.Constraint("DistanceX", 38, 2, 1, 2, Q("2.402 mm")))
sketch7.addConstraint(Sketcher.Constraint("DistanceY", 46, 2, 40, 2, Q("1.061 mm")))
sketch7.addConstraint(Sketcher.Constraint("DistanceY", 47, 2, 39, 2, Q("1.382 mm")))
sketch7.addConstraint(Sketcher.Constraint("DistanceY", 49, 2, 8, 2, Q("7.372 mm")))
sketch7.addConstraint(Sketcher.Constraint("DistanceX", 8, 2, 50, 2, Q("1.126 mm")))
sketch7.addConstraint(Sketcher.Constraint("Distance", 33, Q("36.2396 mm")))
sketch7.addConstraint(Sketcher.Constraint("Distance", 44, Q("9.122399 mm")))
sketch7.addConstraint(Sketcher.Constraint("DistanceX", 0, 3, -1, 1, Q("31.0232 mm")))
sketch7.addConstraint(Sketcher.Constraint("DistanceY", 0, 3, -1, 1, Q("47.0464 mm")))
sketch7.addConstraint(Sketcher.Constraint("DistanceY", -1, 1, 2, 2, Q("4.8101 mm")))
sketch7.addConstraint(Sketcher.Constraint("DistanceX", -1, 1, 3, 2, Q("23.6203 mm")))
sketch7.addConstraint(Sketcher.Constraint("DistanceY", -1, 1, 3, 2, Q("0.0312 mm")))
sketch7.addConstraint(Sketcher.Constraint("DistanceY", 4, 2, -1, 1, Q("4.0613 mm")))
sketch7.addConstraint(Sketcher.Constraint("DistanceY", -1, 1, 6, 2, Q("0.0335 mm")))
sketch7.addConstraint(Sketcher.Constraint("DistanceY", 7, 2, -1, 1, Q("44.9525 mm")))
sketch7.addConstraint(Sketcher.Constraint("DistanceX", -1, 1, 8, 2, Q("29.1472 mm")))
sketch7.addConstraint(Sketcher.Constraint("DistanceY", 9, 2, -1, 1, Q("5.0611 mm")))
sketch7.addConstraint(Sketcher.Constraint("DistanceX", -1, 1, 10, 2, Q("26.7704 mm")))
sketch7.addConstraint(Sketcher.Constraint("DistanceY", 10, 2, -1, 1, Q("1.1876 mm")))
sketch7.addConstraint(Sketcher.Constraint("DistanceX", -1, 1, 11, 2, Q("30.8986 mm")))
sketch7.addConstraint(Sketcher.Constraint("DistanceX", -1, 1, 15, 2, Q("17.3886 mm")))
sketch7.addConstraint(Sketcher.Constraint("DistanceX", -1, 1, 17, 2, Q("20.0154 mm")))
sketch7.addConstraint(Sketcher.Constraint("DistanceY", -1, 1, 17, 2, Q("45.2958 mm")))
sketch7.addConstraint(Sketcher.Constraint("DistanceY", -1, 1, 21, 2, Q("1.5615 mm")))
sketch7.addConstraint(Sketcher.Constraint("DistanceY", -1, 1, 22, 2, Q("5.9353 mm")))
sketch7.addConstraint(Sketcher.Constraint("DistanceX", 23, 2, -1, 1, Q("26.2696 mm")))
sketch7.addConstraint(Sketcher.Constraint("DistanceY", -1, 1, 23, 2, Q("40.4232 mm")))
sketch7.addConstraint(Sketcher.Constraint("DistanceX", 24, 2, -1, 1, Q("33.6508 mm")))
sketch7.addConstraint(Sketcher.Constraint("DistanceY", -1, 1, 28, 2, Q("49.9194 mm")))
sketch7.addConstraint(Sketcher.Constraint("DistanceX", -1, 1, 29, 2, Q("15.8871 mm")))
sketch7.addConstraint(Sketcher.Constraint("DistanceX", 32, 2, -1, 1, Q("31.5238 mm")))
sketch7.addConstraint(Sketcher.Constraint("DistanceY", -1, 1, 35, 2, Q("44.1714 mm")))
sketch7.addConstraint(Sketcher.Constraint("DistanceX", 36, 2, -1, 1, Q("34.9014 mm")))
sketch7.addConstraint(Sketcher.Constraint("DistanceY", -1, 1, 38, 2, Q("6.4348 mm")))
sketch7.addConstraint(Sketcher.Constraint("DistanceX", 39, 2, -1, 1, Q("13.3477 mm")))
sketch7.addConstraint(Sketcher.Constraint("DistanceX", 40, 2, -1, 1, Q("18.3604 mm")))
sketch7.addConstraint(Sketcher.Constraint("DistanceY", 40, 2, -1, 1, Q("47.3956 mm")))
sketch7.addConstraint(Sketcher.Constraint("DistanceY", 42, 2, -1, 1, Q("3.5617 mm")))
sketch7.addConstraint(Sketcher.Constraint("DistanceX", 47, 2, -1, 1, Q("11.8843 mm")))
sketch7.addConstraint(Sketcher.Constraint("DistanceX", -1, 1, 48, 2, Q("26.2704 mm")))
sketch7.addConstraint(Sketcher.Constraint("DistanceY", 48, 2, -1, 1, Q("40.8369 mm")))
sketch7.addConstraint(Sketcher.Constraint("Distance", 14, Q("34.87858 mm")))
sketch7.addConstraint(Sketcher.Constraint("Distance", 15, Q("9.481149 mm")))
sketch7.addConstraint(Sketcher.Constraint("Distance", 20, Q("38.746081 mm")))
sketch7.addConstraint(Sketcher.Constraint("Distance", 34, Q("2.091822 mm")))
pocket2 = body.newObject("PartDesign::Pocket", "Pocket001")
pocket2.Profile = sketch7
pocket2.Length = 2
pocket2.Reversed = True

doc.recompute()
